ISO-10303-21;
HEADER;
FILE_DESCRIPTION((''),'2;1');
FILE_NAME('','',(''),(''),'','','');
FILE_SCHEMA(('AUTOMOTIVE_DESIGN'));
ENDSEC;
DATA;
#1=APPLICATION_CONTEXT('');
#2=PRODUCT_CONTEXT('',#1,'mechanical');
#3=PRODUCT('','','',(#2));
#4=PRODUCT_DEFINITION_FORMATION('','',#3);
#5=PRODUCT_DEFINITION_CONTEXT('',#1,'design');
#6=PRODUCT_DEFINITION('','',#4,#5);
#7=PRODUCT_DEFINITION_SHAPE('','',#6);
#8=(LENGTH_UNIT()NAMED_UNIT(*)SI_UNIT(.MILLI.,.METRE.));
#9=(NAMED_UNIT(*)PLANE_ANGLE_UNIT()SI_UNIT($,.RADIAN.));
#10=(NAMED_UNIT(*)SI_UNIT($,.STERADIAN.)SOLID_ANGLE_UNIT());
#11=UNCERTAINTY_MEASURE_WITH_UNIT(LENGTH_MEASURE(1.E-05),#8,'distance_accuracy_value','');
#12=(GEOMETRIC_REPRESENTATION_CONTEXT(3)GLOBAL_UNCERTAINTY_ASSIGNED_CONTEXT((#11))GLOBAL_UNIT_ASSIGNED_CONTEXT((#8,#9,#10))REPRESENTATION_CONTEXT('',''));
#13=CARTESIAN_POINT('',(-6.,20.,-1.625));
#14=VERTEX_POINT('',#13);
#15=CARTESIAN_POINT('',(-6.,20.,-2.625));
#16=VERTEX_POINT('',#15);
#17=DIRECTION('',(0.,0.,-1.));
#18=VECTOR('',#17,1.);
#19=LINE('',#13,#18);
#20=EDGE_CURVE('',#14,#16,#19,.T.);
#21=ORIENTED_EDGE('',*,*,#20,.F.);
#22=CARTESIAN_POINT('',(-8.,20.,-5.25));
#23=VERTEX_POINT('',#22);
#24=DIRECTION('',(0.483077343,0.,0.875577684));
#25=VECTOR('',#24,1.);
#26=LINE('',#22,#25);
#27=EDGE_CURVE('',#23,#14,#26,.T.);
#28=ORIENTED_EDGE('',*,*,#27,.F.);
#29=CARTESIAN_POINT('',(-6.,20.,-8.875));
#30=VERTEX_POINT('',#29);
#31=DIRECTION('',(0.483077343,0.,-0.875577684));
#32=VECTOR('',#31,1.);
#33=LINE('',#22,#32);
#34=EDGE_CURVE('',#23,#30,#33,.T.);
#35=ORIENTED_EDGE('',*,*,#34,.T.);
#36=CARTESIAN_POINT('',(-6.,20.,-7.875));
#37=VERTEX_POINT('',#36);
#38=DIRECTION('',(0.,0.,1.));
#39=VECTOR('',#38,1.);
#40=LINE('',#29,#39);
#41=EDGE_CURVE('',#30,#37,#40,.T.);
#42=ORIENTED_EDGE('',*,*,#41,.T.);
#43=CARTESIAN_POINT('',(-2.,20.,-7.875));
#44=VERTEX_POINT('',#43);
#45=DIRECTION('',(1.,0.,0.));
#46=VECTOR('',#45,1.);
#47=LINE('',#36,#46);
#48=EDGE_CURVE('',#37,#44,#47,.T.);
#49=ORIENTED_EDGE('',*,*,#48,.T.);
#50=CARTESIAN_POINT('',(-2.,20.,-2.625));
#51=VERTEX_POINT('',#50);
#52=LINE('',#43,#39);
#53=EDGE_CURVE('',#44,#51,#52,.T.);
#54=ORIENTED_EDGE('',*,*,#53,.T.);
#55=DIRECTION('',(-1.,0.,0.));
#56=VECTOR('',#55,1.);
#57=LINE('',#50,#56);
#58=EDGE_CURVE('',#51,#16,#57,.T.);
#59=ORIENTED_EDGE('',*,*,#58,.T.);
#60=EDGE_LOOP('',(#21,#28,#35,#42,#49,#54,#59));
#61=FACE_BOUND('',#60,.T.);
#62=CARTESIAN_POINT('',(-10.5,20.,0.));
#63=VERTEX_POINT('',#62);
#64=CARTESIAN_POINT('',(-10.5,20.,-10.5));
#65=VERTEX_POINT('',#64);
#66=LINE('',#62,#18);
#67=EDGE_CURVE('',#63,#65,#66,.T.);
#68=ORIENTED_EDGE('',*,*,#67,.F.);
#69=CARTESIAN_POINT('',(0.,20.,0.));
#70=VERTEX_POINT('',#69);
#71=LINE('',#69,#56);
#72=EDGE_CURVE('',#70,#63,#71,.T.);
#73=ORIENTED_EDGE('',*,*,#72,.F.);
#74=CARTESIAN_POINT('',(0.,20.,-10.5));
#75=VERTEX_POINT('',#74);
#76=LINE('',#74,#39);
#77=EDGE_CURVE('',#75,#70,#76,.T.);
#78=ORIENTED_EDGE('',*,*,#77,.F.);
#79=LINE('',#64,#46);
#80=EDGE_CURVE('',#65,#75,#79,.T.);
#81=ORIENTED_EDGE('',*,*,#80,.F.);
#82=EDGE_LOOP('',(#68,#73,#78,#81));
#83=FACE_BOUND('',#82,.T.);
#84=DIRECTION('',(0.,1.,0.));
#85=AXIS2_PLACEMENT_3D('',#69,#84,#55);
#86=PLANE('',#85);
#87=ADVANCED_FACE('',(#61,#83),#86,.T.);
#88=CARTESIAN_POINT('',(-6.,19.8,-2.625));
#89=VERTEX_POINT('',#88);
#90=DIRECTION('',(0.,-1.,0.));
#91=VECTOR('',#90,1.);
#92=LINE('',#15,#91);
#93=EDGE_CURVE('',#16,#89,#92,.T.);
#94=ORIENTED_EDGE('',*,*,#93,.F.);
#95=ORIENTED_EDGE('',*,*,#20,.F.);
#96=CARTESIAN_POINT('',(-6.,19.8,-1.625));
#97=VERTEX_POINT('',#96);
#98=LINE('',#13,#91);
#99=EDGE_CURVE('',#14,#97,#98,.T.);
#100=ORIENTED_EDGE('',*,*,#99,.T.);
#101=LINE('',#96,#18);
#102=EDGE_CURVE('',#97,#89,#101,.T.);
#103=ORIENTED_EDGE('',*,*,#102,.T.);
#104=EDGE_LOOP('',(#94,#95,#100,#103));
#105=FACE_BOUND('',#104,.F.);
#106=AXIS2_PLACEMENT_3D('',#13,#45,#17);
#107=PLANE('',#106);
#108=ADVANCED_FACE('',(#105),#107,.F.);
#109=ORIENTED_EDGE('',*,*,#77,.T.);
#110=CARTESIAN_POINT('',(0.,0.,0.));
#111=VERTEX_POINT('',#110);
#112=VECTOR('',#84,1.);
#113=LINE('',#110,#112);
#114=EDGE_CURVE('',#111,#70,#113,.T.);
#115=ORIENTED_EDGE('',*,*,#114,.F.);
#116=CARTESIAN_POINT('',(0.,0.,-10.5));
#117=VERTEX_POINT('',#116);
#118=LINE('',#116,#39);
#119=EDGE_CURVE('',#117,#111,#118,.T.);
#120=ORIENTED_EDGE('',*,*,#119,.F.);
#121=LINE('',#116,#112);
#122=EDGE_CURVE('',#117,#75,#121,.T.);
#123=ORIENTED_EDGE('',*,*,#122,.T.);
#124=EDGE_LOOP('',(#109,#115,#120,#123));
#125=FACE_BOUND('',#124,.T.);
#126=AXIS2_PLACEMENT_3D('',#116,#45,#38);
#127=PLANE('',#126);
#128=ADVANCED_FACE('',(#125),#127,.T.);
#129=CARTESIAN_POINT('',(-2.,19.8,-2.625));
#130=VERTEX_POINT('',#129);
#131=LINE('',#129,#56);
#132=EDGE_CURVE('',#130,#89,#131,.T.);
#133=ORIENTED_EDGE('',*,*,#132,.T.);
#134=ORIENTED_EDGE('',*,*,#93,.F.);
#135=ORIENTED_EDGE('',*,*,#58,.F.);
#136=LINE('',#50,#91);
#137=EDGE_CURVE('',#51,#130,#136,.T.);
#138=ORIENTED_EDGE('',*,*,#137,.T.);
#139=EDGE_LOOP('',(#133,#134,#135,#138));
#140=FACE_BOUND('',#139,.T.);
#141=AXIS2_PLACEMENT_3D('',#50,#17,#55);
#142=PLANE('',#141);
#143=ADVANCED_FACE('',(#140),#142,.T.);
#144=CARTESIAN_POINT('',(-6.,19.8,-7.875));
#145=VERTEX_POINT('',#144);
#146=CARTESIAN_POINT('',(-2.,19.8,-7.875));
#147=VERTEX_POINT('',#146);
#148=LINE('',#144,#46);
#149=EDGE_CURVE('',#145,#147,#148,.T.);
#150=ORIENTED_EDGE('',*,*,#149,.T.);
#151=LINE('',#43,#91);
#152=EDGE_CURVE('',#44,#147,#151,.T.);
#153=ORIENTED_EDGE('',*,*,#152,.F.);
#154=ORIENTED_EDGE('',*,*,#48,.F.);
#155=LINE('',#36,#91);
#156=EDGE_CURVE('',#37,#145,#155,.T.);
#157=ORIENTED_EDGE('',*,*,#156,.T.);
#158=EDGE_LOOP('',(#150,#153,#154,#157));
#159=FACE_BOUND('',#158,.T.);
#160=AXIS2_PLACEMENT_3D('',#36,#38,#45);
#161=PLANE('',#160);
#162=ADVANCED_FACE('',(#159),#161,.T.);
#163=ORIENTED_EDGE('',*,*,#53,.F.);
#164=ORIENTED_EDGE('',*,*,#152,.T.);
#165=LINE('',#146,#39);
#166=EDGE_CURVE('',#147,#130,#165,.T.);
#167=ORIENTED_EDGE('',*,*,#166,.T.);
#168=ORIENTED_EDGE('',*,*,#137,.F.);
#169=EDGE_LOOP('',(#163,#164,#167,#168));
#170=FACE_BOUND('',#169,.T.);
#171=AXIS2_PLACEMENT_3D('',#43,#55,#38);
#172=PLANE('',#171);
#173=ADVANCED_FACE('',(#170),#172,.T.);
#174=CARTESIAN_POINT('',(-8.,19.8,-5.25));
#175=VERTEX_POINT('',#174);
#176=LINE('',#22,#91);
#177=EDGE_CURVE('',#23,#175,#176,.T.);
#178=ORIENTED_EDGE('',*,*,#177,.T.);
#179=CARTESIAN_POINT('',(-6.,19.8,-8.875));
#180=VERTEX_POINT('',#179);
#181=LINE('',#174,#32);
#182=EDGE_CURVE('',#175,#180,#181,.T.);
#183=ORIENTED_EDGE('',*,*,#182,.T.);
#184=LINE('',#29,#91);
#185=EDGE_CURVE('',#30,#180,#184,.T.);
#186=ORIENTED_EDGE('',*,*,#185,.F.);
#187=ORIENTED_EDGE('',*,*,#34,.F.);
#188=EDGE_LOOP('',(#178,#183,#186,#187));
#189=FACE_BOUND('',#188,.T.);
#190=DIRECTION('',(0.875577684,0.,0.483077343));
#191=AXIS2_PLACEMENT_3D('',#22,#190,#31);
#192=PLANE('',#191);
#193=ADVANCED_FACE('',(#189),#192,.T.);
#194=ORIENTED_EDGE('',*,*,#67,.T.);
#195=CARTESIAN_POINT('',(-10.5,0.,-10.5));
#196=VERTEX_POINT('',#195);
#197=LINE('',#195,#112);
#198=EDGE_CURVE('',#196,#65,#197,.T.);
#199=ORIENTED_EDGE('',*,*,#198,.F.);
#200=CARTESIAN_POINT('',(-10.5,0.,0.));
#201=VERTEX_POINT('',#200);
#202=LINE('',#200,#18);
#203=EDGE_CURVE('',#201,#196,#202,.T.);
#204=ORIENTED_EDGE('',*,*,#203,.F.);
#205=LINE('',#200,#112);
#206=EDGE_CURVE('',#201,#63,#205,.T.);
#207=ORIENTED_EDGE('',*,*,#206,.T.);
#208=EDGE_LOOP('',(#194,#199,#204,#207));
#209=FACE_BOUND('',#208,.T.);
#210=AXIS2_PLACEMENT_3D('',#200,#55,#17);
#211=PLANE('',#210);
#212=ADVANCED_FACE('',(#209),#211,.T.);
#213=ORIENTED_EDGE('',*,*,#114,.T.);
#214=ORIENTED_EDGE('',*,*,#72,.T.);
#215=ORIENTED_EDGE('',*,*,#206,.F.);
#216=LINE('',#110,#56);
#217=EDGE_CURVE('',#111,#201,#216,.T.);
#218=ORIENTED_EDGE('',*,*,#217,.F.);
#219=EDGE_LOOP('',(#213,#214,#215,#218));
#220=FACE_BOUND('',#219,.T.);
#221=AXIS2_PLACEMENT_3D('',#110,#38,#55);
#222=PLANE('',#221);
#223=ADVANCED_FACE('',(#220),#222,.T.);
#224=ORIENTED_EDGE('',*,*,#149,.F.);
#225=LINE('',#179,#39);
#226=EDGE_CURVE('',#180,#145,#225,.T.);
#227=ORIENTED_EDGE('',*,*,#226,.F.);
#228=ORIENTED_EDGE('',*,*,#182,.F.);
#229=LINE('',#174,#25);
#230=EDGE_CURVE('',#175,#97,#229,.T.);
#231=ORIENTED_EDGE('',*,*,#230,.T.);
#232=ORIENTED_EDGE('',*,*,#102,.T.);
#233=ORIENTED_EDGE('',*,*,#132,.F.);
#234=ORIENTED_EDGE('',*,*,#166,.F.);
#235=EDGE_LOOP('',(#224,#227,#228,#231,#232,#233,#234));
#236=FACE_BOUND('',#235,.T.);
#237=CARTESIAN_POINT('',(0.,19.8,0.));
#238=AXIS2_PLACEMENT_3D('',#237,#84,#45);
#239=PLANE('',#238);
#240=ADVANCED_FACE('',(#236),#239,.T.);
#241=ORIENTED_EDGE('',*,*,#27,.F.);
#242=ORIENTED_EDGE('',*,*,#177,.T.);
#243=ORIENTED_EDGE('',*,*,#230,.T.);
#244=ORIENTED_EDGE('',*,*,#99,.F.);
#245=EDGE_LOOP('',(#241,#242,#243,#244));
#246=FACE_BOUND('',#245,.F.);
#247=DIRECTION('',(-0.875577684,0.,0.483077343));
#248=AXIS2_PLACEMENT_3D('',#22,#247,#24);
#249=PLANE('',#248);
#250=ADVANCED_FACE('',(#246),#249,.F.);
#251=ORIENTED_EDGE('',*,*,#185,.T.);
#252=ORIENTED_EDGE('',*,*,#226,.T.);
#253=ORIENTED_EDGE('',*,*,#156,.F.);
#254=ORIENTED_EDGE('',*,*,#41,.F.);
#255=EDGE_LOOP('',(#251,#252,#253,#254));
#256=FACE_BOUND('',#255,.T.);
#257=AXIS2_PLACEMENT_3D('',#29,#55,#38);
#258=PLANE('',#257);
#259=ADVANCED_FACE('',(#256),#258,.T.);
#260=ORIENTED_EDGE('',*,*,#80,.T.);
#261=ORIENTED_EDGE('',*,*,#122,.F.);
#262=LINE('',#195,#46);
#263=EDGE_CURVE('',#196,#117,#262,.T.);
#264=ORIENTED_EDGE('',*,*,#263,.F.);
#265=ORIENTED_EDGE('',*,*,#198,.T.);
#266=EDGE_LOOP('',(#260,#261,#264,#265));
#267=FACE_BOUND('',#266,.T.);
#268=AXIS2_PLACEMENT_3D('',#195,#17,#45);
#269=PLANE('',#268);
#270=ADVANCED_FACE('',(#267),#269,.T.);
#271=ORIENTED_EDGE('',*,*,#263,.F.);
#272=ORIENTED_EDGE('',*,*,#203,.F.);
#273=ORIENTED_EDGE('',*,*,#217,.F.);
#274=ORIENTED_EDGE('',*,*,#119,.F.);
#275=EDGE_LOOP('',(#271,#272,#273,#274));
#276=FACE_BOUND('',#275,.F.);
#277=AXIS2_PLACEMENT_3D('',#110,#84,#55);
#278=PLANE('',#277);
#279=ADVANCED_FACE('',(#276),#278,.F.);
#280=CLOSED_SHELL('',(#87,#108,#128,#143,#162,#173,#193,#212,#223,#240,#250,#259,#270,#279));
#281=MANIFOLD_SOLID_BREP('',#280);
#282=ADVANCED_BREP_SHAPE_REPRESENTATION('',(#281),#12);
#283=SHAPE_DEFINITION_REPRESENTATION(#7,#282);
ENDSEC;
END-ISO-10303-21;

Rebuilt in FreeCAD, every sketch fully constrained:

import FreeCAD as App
import Part
import Sketcher
from FreeCAD import Vector
Q = App.Units.Quantity

doc = App.newDocument("Part")
params = doc.addObject("Spreadsheet::Sheet", "Params")
for row, (alias, value) in enumerate([
    ("sketch1_width", "10.5 mm"),
    ("pad1_length", "20 mm"),
    ("sketch2_width", "4 mm"),
    ("sketch2_height", "1 mm"),
    ("sketch2_height2", "5.25 mm"),
    ("pocket1_length", "0.2 mm"),
], start=1):
    params.set(f"A{row}", alias)
    params.set(f"B{row}", "=" + value)
    params.setAlias(f"B{row}", alias)

body = doc.addObject("PartDesign::Body", "Body")

# Sketch on XZ plane
sketch1 = body.newObject("Sketcher::SketchObject", "Sketch")
sketch1.AttachmentSupport = (doc.getObject("XZ_Plane"), [""])
sketch1.MapMode = "FlatFace"
sketch1.addGeometry([
    Part.LineSegment(Vector(-10.5, 0, 0), Vector(0, 0, 0)),
    Part.LineSegment(Vector(0, 0, 0), Vector(0, -10.5, 0)),
    Part.LineSegment(Vector(0, -10.5, 0), Vector(-10.5, -10.5, 0)),
    Part.LineSegment(Vector(-10.5, -10.5, 0), Vector(-10.5, 0, 0)),
], False)
sketch1.addConstraint([
    Sketcher.Constraint("Coincident", 0, 2, 1, 1),
    Sketcher.Constraint("Coincident", 1, 2, 2, 1),
    Sketcher.Constraint("Coincident", 2, 2, 3, 1),
    Sketcher.Constraint("Coincident", 3, 2, 0, 1),
    Sketcher.Constraint("Horizontal", 0),
    Sketcher.Constraint("Vertical", 1),
    Sketcher.Constraint("Horizontal", 2),
    Sketcher.Constraint("Vertical", 3),
    Sketcher.Constraint("Coincident", 0, 2, -1, 1),
    Sketcher.Constraint("Equal", 2, 1),
    Sketcher.Constraint("DistanceX", 0, 1, 0, 2, Q("10.5 mm")),
])
sketch1.setExpression("Constraints[10]", "Params.sketch1_width")
pad1 = body.newObject("PartDesign::Pad", "Pad")
pad1.Profile = sketch1
pad1.setExpression("Length", "Params.pad1_length")
pad1.Reversed = True

# Sketch on XZ plane
sketch2 = body.newObject("Sketcher::SketchObject", "Sketch001")
sketch2.AttachmentSupport = (doc.getObject("XZ_Plane"), [""])
sketch2.MapMode = "FlatFace"
sketch2.AttachmentOffset = App.Placement(Vector(0, 0, -20), App.Rotation())
sketch2.addGeometry([
    Part.LineSegment(Vector(-6, -2.625, 0), Vector(-2, -2.625, 0)),  # 0
    Part.LineSegment(Vector(-2, -2.625, 0), Vector(-2, -7.875, 0)),  # 1
    Part.LineSegment(Vector(-2, -7.875, 0), Vector(-6, -7.875, 0)),  # 2
    Part.LineSegment(Vector(-6, -7.875, 0), Vector(-6, -8.875, 0)),  # 3
    Part.LineSegment(Vector(-6, -8.875, 0), Vector(-8, -5.25, 0)),  # 4
    Part.LineSegment(Vector(-8, -5.25, 0), Vector(-6, -1.625, 0)),  # 5
    Part.LineSegment(Vector(-6, -1.625, 0), Vector(-6, -2.625, 0)),  # 6
], False)
sketch2.addConstraint([
    Sketcher.Constraint("Coincident", 0, 2, 1, 1),
    Sketcher.Constraint("Coincident", 1, 2, 2, 1),
    Sketcher.Constraint("Coincident", 2, 2, 3, 1),
    Sketcher.Constraint("Coincident", 3, 2, 4, 1),
    Sketcher.Constraint("Coincident", 4, 2, 5, 1),
    Sketcher.Constraint("Coincident", 5, 2, 6, 1),
    Sketcher.Constraint("Coincident", 6, 2, 0, 1),
    Sketcher.Constraint("Horizontal", 0),
    Sketcher.Constraint("Vertical", 1),
    Sketcher.Constraint("Horizontal", 2),
    Sketcher.Constraint("Vertical", 3),
    Sketcher.Constraint("Vertical", 6),
    Sketcher.Constraint("Vertical", 3, 2, 5, 2),
    Sketcher.Constraint("Equal", 3, 6),
    Sketcher.Constraint("Equal", 4, 5),
    Sketcher.Constraint("DistanceX", 0, 1, 0, 2, Q("4 mm")),
    Sketcher.Constraint("DistanceY", 3, 2, 3, 1, Q("1 mm")),
    Sketcher.Constraint("DistanceX", 0, 2, -1, 1, Q("2 mm")),
    Sketcher.Constraint("DistanceX", 4, 2, 2, 2, Q("2 mm")),
    Sketcher.Constraint("DistanceY", 1, 2, 1, 1, Q("5.25 mm")),
    Sketcher.Constraint("DistanceY", 4, 2, -1, 1, Q("5.25 mm")),
])
sketch2.setExpression("Constraints[15]", "Params.sketch2_width")
sketch2.setExpression("Constraints[16]", "Params.sketch2_height")
sketch2.setExpression("Constraints[19]", "Params.sketch2_height2")
pocket1 = body.newObject("PartDesign::Pocket", "Pocket")
pocket1.Profile = sketch2
pocket1.setExpression("Length", "Params.pocket1_length")
pocket1.Reversed = True

doc.recompute()
